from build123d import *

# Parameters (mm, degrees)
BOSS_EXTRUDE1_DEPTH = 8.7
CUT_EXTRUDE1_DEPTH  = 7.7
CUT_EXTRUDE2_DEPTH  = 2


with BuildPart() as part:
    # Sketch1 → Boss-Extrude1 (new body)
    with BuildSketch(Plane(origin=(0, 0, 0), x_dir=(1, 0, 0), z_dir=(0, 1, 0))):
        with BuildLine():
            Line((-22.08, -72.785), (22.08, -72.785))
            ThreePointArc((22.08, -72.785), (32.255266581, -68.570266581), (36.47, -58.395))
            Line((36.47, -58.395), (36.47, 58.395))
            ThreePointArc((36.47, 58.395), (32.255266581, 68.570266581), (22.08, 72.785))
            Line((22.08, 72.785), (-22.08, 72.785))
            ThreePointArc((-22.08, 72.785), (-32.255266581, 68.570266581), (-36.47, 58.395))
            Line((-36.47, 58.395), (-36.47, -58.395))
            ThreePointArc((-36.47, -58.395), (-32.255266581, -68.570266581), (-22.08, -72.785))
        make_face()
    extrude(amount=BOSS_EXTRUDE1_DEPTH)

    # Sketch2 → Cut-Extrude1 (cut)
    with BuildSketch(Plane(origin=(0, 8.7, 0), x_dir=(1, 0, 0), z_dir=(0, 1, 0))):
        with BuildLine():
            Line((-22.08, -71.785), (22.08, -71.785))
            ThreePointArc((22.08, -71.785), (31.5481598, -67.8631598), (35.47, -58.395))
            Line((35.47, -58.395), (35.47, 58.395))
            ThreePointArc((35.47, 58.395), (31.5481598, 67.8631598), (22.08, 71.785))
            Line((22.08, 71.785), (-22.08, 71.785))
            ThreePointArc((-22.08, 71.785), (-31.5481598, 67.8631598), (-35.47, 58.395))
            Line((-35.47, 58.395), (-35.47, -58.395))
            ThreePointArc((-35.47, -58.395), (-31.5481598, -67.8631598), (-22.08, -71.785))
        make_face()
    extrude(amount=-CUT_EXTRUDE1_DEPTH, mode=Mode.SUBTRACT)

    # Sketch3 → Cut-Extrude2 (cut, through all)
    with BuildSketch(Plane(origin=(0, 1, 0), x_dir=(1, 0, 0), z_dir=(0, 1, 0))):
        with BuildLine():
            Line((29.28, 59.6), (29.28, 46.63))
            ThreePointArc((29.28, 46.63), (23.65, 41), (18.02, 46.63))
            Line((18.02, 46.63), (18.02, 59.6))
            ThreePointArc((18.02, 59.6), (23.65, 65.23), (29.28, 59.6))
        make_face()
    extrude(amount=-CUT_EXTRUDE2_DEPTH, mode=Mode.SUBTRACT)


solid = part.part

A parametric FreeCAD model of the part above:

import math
import FreeCAD as App
import Part
import Sketcher

V = App.Vector

doc = App.newDocument("Part")
params = doc.addObject("Spreadsheet::Sheet", "Params")
for row, (alias, value) in enumerate([
    ("sketch1_radius", "14.39 mm"),
    ("sketch1_width", "44.16 mm"),
    ("sketch1_height", "116.79 mm"),
    ("pad1_length", "8.7 mm"),
    ("sketch2_radius", "13.39 mm"),
    ("sketch2_width", "44.16 mm"),
    ("sketch2_height", "116.79 mm"),
    ("pocket1_length", "7.7 mm"),
    ("sketch3_radius", "5.63 mm"),
    ("sketch3_height", "12.97 mm"),
], start=1):
    params.set(f"A{row}", alias)
    params.set(f"B{row}", "=" + value)
    params.setAlias(f"B{row}", alias)

body = doc.addObject("PartDesign::Body", "Body")

# Sketch on XZ plane
sketch1 = body.newObject("Sketcher::SketchObject", "Sketch")
sketch1.AttachmentSupport = (doc.getObject("XZ_Plane"), [""])
sketch1.MapMode = "FlatFace"
sketch1.addGeometry(Part.LineSegment(V(-22.08, 72.785, 0), V(22.08, 72.785, 0)), False)
sketch1.addGeometry(Part.ArcOfCircle(Part.Circle(V(22.08, 58.395, 0), V(0, 0, 1), 14.39), math.radians(0), math.radians(90)), False)
sketch1.addGeometry(Part.LineSegment(V(36.47, 58.395, 0), V(36.47, -58.395, 0)), False)
sketch1.addGeometry(Part.ArcOfCircle(Part.Circle(V(22.08, -58.395, 0), V(0, 0, 1), 14.39), math.radians(-90), math.radians(0)), False)
sketch1.addGeometry(Part.LineSegment(V(22.08, -72.785, 0), V(-22.08, -72.785, 0)), False)
sketch1.addGeometry(Part.ArcOfCircle(Part.Circle(V(-22.08, -58.395, 0), V(0, 0, 1), 14.39), math.radians(-180), math.radians(-90)), False)
sketch1.addGeometry(Part.LineSegment(V(-36.47, -58.395, 0), V(-36.47, 58.395, 0)), False)
sketch1.addGeometry(Part.ArcOfCircle(Part.Circle(V(-22.08, 58.395, 0), V(0, 0, 1), 14.39), math.radians(90), math.radians(180)), False)
sketch1.addConstraint(Sketcher.Constraint("Tangent", 0, 2, 1, 2))
sketch1.addConstraint(Sketcher.Constraint("Tangent", 1, 1, 2, 1))
sketch1.addConstraint(Sketcher.Constraint("Tangent", 2, 2, 3, 2))
sketch1.addConstraint(Sketcher.Constraint("Tangent", 3, 1, 4, 1))
sketch1.addConstraint(Sketcher.Constraint("Tangent", 4, 2, 5, 2))
sketch1.addConstraint(Sketcher.Constraint("Tangent", 5, 1, 6, 1))
sketch1.addConstraint(Sketcher.Constraint("Tangent", 6, 2, 7, 2))
sketch1.addConstraint(Sketcher.Constraint("Tangent", 7, 1, 0, 1))
sketch1.addConstraint(Sketcher.Constraint("Horizontal", 0))
sketch1.addConstraint(Sketcher.Constraint("Vertical", 2))
sketch1.addConstraint(Sketcher.Constraint("Horizontal", 4))
sketch1.addConstraint(Sketcher.Constraint("Vertical", 6))
sketch1.addConstraint(Sketcher.Constraint("Equal", 1, 3))
sketch1.addConstraint(Sketcher.Constraint("Equal", 3, 5))
sketch1.addConstraint(Sketcher.Constraint("Equal", 5, 7))
sketch1.addConstraint(Sketcher.Constraint("Symmetric", 1, 3, 5, 3, -1, 1))
sketch1.addConstraint(Sketcher.Constraint("Radius", 1, 14.39))
sketch1.addConstraint(Sketcher.Constraint("DistanceX", 0, 1, 0, 2, 44.16))
sketch1.addConstraint(Sketcher.Constraint("DistanceY", 2, 2, 2, 1, 116.79))
sketch1.setExpression("Constraints[16]", "Params.sketch1_radius")
sketch1.setExpression("Constraints[17]", "Params.sketch1_width")
sketch1.setExpression("Constraints[18]", "Params.sketch1_height")
pad1 = body.newObject("PartDesign::Pad", "Pad")
pad1.Profile = sketch1
pad1.setExpression("Length", "Params.pad1_length")
pad1.Reversed = True

# Sketch on XZ plane
sketch2 = body.newObject("Sketcher::SketchObject", "Sketch001")
sketch2.AttachmentSupport = (doc.getObject("XZ_Plane"), [""])
sketch2.MapMode = "FlatFace"
sketch2.AttachmentOffset = App.Placement(V(0, 0, -8.7), App.Rotation())
sketch2.addGeometry(Part.LineSegment(V(-22.08, 71.785, 0), V(22.08, 71.785, 0)), False)
sketch2.addGeometry(Part.ArcOfCircle(Part.Circle(V(22.08, 58.395, 0), V(0, 0, 1), 13.39), math.radians(0), math.radians(90)), False)
sketch2.addGeometry(Part.LineSegment(V(35.47, 58.395, 0), V(35.47, -58.395, 0)), False)
sketch2.addGeometry(Part.ArcOfCircle(Part.Circle(V(22.08, -58.395, 0), V(0, 0, 1), 13.39), math.radians(-90), math.radians(0)), False)
sketch2.addGeometry(Part.LineSegment(V(22.08, -71.785, 0), V(-22.08, -71.785, 0)), False)
sketch2.addGeometry(Part.ArcOfCircle(Part.Circle(V(-22.08, -58.395, 0), V(0, 0, 1), 13.39), math.radians(180), math.radians(270)), False)
sketch2.addGeometry(Part.LineSegment(V(-35.47, -58.395, 0), V(-35.47, 58.395, 0)), False)
sketch2.addGeometry(Part.ArcOfCircle(Part.Circle(V(-22.08, 58.395, 0), V(0, 0, 1), 13.39), math.radians(90), math.radians(180)), False)
sketch2.addConstraint(Sketcher.Constraint("Tangent", 0, 2, 1, 2))
sketch2.addConstraint(Sketcher.Constraint("Tangent", 1, 1, 2, 1))
sketch2.addConstraint(Sketcher.Constraint("Tangent", 2, 2, 3, 2))
sketch2.addConstraint(Sketcher.Constraint("Tangent", 3, 1, 4, 1))
sketch2.addConstraint(Sketcher.Constraint("Tangent", 4, 2, 5, 2))
sketch2.addConstraint(Sketcher.Constraint("Tangent", 5, 1, 6, 1))
sketch2.addConstraint(Sketcher.Constraint("Tangent", 6, 2, 7, 2))
sketch2.addConstraint(Sketcher.Constraint("Tangent", 7, 1, 0, 1))
sketch2.addConstraint(Sketcher.Constraint("Horizontal", 0))
sketch2.addConstraint(Sketcher.Constraint("Vertical", 2))
sketch2.addConstraint(Sketcher.Constraint("Horizontal", 4))
sketch2.addConstraint(Sketcher.Constraint("Vertical", 6))
sketch2.addConstraint(Sketcher.Constraint("Equal", 1, 3))
sketch2.addConstraint(Sketcher.Constraint("Equal", 3, 5))
sketch2.addConstraint(Sketcher.Constraint("Equal", 5, 7))
sketch2.addConstraint(Sketcher.Constraint("Symmetric", 1, 3, 5, 3, -1, 1))
sketch2.addConstraint(Sketcher.Constraint("Radius", 1, 13.39))
sketch2.addConstraint(Sketcher.Constraint("DistanceX", 0, 1, 0, 2, 44.16))
sketch2.addConstraint(Sketcher.Constraint("DistanceY", 2, 2, 2, 1, 116.79))
sketch2.setExpression("Constraints[16]", "Params.sketch2_radius")
sketch2.setExpression("Constraints[17]", "Params.sketch2_width")
sketch2.setExpression("Constraints[18]", "Params.sketch2_height")
pocket1 = body.newObject("PartDesign::Pocket", "Pocket")
pocket1.Profile = sketch2
pocket1.setExpression("Length", "Params.pocket1_length")
pocket1.Reversed = True

# Sketch on XZ plane
sketch3 = body.newObject("Sketcher::SketchObject", "Sketch002")
sketch3.AttachmentSupport = (doc.getObject("XZ_Plane"), [""])
sketch3.MapMode = "FlatFace"
sketch3.AttachmentOffset = App.Placement(V(0, 0, -1), App.Rotation())
sketch3.addGeometry(Part.LineSegment(V(29.28, -46.63, 0), V(29.28, -59.6, 0)), False)
sketch3.addGeometry(Part.ArcOfCircle(Part.Circle(V(23.65, -59.6, 0), V(0, 0, 1), 5.63), math.radians(180), math.radians(360)), False)
sketch3.addGeometry(Part.LineSegment(V(18.02, -59.6, 0), V(18.02, -46.63, 0)), False)
sketch3.addGeometry(Part.ArcOfCircle(Part.Circle(V(23.65, -46.63, 0), V(0, 0, 1), 5.63), math.radians(0), math.radians(180)), False)
sketch3.addConstraint(Sketcher.Constraint("Tangent", 0, 2, 1, 2))
sketch3.addConstraint(Sketcher.Constraint("Tangent", 1, 1, 2, 1))
sketch3.addConstraint(Sketcher.Constraint("Tangent", 2, 2, 3, 2))
sketch3.addConstraint(Sketcher.Constraint("Tangent", 3, 1, 0, 1))
sketch3.addConstraint(Sketcher.Constraint("Vertical", 0))
sketch3.addConstraint(Sketcher.Constraint("Vertical", 2))
sketch3.addConstraint(Sketcher.Constraint("Radius", 1, 5.63))
sketch3.addConstraint(Sketcher.Constraint("DistanceY", 0, 2, 0, 1, 12.97))
sketch3.addConstraint(Sketcher.Constraint("DistanceY", 1, 3, -1, 1, 59.6))
sketch3.addConstraint(Sketcher.Constraint("DistanceX", -1, 1, 1, 3, 23.65))
sketch3.setExpression("Constraints[6]", "Params.sketch3_radius")
sketch3.setExpression("Constraints[7]", "Params.sketch3_height")
pocket2 = body.newObject("PartDesign::Pocket", "Pocket001")
pocket2.Profile = sketch3
pocket2.Type = "ThroughAll"
pocket2.Reversed = True

doc.recompute()
